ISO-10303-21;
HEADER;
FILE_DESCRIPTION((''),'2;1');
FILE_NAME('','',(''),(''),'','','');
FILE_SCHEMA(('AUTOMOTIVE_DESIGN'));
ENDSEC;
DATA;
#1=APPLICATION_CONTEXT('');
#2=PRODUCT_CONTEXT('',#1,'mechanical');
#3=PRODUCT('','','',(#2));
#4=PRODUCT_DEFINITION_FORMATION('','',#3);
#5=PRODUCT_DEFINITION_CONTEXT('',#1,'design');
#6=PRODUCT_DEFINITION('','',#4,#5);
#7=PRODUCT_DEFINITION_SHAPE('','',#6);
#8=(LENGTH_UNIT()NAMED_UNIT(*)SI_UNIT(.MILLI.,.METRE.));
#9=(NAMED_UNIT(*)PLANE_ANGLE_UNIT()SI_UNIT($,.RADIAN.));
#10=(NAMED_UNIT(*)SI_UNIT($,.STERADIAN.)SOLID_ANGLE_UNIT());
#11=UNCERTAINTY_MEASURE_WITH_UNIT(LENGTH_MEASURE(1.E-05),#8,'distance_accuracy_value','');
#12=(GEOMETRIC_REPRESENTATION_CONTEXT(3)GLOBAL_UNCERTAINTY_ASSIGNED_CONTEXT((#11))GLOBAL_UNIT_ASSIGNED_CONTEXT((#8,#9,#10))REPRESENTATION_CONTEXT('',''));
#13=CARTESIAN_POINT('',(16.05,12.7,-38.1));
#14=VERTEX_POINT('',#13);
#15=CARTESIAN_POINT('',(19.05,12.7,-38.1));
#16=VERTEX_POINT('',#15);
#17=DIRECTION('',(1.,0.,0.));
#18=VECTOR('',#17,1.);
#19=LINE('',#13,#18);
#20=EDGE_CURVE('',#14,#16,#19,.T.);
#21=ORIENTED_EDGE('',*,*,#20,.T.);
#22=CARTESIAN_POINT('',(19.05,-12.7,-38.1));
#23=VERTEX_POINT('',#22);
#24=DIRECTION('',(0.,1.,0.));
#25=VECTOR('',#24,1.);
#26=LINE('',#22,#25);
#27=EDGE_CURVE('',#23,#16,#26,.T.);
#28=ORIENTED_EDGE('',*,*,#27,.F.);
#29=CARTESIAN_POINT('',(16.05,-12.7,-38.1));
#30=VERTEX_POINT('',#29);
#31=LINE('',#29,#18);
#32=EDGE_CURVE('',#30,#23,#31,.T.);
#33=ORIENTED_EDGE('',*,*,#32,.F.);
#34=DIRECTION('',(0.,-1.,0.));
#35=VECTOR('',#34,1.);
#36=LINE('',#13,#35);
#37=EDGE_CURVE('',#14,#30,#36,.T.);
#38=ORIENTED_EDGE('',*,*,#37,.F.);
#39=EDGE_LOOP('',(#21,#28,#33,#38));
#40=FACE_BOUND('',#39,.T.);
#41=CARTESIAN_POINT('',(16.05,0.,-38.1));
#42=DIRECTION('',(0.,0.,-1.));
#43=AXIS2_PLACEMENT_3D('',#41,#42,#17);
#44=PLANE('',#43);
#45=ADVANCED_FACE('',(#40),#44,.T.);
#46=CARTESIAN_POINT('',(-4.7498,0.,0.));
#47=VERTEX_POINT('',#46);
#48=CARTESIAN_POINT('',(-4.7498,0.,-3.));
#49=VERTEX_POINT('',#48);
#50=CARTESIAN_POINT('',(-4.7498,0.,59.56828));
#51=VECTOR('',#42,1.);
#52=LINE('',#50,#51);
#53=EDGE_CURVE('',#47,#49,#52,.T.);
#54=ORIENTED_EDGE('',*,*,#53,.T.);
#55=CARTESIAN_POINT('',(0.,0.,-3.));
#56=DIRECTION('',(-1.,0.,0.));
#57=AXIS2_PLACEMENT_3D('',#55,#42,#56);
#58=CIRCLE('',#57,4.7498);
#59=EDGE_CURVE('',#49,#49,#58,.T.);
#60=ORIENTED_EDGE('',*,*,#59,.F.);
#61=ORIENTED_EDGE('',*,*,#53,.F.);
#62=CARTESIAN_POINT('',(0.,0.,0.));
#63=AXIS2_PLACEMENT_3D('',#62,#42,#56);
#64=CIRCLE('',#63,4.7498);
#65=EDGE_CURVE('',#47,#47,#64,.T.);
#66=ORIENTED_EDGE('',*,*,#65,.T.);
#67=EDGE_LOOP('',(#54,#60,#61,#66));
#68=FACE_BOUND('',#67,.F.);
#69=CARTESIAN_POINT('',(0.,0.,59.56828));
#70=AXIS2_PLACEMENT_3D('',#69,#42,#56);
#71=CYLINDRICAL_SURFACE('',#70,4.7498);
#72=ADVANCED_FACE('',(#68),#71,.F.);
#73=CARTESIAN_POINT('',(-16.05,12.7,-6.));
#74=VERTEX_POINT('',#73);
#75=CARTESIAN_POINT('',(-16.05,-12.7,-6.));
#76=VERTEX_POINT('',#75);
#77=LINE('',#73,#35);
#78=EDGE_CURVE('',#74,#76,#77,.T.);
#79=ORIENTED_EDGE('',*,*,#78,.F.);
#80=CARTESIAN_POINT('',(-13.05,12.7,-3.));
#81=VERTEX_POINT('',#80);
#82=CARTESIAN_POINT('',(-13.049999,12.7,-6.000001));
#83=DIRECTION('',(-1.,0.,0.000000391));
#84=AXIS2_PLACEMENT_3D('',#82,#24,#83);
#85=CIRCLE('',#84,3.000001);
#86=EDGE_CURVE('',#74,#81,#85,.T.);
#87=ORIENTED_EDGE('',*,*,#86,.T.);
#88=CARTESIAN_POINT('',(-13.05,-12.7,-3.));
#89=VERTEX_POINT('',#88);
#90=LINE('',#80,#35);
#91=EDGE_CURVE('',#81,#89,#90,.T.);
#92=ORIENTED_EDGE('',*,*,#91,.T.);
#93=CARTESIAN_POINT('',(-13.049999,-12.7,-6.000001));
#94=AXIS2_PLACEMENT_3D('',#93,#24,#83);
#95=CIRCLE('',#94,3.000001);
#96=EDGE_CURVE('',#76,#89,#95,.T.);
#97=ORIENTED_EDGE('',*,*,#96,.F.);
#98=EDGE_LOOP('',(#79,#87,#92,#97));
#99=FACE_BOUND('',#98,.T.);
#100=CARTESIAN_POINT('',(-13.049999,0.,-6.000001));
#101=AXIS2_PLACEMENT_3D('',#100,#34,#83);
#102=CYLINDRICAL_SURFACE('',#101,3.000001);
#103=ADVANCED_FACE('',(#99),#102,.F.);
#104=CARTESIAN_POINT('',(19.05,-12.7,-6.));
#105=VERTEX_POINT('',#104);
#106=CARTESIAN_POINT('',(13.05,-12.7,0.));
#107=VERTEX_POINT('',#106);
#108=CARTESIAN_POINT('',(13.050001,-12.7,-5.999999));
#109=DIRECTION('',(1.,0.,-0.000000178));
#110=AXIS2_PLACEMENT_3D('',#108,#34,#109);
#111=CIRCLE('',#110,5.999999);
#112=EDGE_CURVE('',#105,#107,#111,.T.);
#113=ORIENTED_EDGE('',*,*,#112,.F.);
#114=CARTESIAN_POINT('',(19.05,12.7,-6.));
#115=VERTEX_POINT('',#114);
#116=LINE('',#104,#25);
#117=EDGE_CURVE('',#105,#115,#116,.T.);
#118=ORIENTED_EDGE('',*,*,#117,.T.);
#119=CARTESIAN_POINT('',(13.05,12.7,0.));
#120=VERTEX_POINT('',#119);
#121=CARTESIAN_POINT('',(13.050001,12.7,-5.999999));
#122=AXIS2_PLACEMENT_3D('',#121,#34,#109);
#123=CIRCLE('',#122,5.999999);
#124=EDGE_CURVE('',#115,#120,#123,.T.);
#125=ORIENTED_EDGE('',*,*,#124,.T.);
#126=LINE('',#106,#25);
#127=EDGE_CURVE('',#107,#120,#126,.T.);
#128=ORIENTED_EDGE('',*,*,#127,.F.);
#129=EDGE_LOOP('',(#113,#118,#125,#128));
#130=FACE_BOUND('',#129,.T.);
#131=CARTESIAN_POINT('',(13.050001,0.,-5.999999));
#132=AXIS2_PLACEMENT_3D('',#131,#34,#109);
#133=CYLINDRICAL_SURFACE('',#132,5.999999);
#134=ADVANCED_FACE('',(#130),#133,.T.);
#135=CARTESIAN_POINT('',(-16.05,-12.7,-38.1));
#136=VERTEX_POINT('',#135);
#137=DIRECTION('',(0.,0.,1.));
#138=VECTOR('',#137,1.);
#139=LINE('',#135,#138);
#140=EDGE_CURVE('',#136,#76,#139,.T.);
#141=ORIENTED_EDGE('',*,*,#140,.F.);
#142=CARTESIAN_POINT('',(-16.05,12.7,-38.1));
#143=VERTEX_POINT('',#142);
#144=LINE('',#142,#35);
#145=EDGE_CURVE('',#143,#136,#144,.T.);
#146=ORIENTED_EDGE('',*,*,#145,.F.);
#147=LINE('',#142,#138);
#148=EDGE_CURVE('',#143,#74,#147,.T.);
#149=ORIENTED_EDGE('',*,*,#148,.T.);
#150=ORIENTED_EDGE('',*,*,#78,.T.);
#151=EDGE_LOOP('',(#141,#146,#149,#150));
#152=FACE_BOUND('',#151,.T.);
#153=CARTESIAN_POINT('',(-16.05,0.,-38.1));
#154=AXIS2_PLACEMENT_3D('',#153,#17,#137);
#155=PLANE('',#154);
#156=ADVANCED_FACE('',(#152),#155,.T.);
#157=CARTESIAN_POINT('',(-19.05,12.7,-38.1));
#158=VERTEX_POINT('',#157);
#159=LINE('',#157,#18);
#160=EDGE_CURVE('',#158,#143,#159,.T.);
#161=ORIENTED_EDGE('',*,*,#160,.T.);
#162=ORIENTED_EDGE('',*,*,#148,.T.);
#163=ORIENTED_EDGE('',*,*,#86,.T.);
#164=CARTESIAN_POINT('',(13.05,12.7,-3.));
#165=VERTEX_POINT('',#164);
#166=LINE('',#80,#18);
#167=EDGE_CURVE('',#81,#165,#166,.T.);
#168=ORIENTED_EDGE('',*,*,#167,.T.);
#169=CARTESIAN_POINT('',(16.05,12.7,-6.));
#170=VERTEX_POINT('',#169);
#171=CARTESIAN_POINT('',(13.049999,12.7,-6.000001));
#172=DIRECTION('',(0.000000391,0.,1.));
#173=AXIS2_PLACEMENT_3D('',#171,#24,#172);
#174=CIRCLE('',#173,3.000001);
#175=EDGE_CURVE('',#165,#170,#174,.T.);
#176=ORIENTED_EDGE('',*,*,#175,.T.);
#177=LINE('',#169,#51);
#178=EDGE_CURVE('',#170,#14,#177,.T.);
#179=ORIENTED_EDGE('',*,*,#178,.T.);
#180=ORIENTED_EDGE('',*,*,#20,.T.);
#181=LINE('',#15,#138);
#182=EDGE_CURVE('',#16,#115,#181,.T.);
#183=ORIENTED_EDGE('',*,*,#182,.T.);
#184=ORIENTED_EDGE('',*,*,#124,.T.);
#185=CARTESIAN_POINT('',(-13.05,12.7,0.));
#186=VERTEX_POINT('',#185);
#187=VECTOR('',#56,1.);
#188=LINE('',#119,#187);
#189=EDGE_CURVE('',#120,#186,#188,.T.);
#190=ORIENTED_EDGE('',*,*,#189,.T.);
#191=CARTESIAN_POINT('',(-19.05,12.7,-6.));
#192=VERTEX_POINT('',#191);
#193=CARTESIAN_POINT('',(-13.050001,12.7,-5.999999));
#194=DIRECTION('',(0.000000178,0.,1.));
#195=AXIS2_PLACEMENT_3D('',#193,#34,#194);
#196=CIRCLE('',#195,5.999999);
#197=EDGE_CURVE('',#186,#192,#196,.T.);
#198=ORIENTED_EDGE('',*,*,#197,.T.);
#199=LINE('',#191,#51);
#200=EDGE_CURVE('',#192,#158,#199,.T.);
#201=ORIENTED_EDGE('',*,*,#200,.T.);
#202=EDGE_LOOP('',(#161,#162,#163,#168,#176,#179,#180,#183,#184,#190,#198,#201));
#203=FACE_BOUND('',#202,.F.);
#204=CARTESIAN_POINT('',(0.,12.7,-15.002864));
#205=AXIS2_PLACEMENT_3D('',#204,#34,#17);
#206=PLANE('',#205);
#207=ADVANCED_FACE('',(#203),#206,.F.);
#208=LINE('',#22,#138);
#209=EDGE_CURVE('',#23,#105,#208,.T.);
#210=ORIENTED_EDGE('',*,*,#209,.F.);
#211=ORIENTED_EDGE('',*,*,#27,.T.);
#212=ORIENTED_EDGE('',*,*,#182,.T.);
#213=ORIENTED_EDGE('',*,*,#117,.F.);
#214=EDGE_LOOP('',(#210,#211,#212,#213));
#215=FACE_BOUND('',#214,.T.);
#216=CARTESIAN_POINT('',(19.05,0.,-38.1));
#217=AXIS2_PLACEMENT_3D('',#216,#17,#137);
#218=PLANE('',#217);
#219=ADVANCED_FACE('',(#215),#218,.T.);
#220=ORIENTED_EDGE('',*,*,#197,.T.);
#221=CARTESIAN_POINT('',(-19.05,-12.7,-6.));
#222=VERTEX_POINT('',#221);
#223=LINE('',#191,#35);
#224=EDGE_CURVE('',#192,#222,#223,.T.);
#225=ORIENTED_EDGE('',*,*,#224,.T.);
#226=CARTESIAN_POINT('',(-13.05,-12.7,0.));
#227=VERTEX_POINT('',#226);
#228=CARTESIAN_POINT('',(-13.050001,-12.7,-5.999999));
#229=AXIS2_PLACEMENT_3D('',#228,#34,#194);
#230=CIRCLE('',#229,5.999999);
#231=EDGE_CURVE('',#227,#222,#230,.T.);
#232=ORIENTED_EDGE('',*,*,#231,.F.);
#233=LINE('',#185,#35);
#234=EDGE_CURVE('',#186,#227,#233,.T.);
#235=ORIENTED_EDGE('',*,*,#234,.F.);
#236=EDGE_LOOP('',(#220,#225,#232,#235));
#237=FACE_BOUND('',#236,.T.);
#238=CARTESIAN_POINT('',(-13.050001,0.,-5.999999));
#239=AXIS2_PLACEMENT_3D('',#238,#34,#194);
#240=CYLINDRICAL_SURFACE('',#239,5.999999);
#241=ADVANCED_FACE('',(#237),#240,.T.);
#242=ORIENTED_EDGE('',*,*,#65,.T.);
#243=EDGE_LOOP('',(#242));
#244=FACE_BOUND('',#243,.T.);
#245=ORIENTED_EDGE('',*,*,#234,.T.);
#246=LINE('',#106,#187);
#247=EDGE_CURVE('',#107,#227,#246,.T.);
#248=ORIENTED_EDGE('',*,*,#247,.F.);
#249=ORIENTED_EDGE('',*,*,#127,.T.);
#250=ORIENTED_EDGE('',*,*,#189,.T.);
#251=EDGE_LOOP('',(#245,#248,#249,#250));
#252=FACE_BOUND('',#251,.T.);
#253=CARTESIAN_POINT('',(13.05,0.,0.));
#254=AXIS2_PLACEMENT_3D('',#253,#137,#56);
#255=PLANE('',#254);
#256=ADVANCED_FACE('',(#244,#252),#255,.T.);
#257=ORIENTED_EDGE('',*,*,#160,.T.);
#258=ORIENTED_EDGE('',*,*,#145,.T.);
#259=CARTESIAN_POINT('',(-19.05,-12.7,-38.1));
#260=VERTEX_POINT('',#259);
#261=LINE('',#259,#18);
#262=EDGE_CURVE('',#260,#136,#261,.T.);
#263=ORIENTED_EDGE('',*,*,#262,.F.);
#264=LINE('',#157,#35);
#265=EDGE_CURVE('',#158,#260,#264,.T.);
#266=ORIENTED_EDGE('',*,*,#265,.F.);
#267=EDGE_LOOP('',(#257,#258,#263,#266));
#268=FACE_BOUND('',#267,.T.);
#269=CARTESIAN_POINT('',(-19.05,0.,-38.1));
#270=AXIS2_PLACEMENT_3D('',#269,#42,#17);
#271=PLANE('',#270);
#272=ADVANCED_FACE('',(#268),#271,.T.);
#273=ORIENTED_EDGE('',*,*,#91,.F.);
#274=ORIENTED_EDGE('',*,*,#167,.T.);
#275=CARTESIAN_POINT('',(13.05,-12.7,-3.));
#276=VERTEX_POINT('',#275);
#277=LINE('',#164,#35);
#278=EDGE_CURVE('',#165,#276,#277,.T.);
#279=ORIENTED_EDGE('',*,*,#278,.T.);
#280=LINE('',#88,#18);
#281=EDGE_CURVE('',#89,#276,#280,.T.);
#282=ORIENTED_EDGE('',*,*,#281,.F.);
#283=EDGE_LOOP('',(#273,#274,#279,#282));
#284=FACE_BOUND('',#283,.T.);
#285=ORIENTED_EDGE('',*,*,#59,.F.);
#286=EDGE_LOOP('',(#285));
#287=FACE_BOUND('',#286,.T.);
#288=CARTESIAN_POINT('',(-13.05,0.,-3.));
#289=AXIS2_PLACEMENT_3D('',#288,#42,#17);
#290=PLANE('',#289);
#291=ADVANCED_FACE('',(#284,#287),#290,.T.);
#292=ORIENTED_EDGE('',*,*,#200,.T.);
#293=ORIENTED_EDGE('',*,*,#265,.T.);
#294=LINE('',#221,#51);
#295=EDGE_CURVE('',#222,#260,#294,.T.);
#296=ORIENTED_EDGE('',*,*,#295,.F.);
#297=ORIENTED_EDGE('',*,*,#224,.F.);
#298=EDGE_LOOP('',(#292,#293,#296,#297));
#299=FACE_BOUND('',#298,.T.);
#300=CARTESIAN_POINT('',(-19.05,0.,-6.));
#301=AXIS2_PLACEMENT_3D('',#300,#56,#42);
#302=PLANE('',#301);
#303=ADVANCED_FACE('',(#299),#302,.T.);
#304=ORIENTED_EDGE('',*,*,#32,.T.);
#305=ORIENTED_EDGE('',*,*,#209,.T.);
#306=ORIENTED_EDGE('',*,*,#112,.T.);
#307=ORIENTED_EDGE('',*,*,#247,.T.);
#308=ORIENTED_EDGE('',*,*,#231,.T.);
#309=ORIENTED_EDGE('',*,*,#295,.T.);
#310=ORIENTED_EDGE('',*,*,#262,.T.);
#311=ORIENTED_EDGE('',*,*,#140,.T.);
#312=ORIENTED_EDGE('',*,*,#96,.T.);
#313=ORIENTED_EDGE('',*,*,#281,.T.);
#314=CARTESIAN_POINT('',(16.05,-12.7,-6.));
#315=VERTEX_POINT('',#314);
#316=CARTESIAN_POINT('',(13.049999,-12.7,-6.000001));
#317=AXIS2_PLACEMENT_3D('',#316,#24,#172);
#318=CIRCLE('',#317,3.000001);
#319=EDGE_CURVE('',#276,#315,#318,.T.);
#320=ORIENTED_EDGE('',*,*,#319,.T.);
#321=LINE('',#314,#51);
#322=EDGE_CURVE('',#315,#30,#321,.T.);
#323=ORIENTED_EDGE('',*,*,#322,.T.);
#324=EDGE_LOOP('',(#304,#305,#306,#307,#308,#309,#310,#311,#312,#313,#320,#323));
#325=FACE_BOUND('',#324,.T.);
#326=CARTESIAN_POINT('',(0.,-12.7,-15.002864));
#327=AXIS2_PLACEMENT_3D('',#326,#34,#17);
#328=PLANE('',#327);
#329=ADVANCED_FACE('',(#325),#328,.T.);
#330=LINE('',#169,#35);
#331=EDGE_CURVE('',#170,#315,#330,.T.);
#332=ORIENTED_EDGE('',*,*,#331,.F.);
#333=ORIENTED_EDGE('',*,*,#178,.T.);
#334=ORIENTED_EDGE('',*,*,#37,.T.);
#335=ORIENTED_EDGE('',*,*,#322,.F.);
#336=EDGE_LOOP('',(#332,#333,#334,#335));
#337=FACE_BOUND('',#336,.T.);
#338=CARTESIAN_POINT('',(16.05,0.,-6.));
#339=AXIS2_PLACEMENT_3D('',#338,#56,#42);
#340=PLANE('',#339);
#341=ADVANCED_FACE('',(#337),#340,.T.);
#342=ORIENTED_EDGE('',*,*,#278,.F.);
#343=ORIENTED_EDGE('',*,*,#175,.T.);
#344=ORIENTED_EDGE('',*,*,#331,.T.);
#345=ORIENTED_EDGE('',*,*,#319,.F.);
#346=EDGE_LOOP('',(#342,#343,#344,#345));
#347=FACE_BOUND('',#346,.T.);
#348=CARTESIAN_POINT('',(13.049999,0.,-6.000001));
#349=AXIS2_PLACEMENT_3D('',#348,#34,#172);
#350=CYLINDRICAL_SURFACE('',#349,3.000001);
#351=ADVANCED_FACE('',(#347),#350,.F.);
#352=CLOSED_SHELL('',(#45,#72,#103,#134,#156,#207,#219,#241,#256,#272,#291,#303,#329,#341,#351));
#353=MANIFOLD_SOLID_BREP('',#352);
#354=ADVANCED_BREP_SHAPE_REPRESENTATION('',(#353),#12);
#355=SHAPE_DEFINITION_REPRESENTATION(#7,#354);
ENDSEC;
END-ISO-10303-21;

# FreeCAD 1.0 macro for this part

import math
import FreeCAD as App
import Part
import Sketcher

V = App.Vector

doc = App.newDocument("Part")
body = doc.addObject("PartDesign::Body", "Body")

# Sketch on XZ plane
sketch1 = body.newObject("Sketcher::SketchObject", "Sketch")
sketch1.AttachmentSupport = (doc.getObject("XZ_Plane"), [""])
sketch1.MapMode = "FlatFace"
sketch1.addGeometry([
    Part.LineSegment(V(13.1, 0, 0), V(-13.1, 0, 0)),  # 0
    Part.ArcOfCircle(Part.Circle(V(-13.1, -6, 0), V(0, 0, 1), 6), math.radians(90), math.radians(180)),  # 1
    Part.LineSegment(V(-19.1, -6, 0), V(-19.1, -38.1, 0)),  # 2
    Part.LineSegment(V(-19.1, -38.1, 0), V(-16.1, -38.1, 0)),  # 3
    Part.LineSegment(V(-16.1, -38.1, 0), V(-16.1, -6, 0)),  # 4
    Part.ArcOfCircle(Part.Circle(V(-13, -6, 0), V(0, 0, 1), 3), math.radians(90), math.radians(180)),  # 5
    Part.LineSegment(V(-13.1, -3, 0), V(13.1, -3, 0)),  # 6
    Part.ArcOfCircle(Part.Circle(V(13, -6, 0), V(0, 0, 1), 3), math.radians(0), math.radians(90)),  # 7
    Part.LineSegment(V(16.1, -6, 0), V(16.1, -38.1, 0)),  # 8
    Part.LineSegment(V(16.1, -38.1, 0), V(19.1, -38.1, 0)),  # 9
    Part.LineSegment(V(19.1, -38.1, 0), V(19.1, -6, 0)),  # 10
    Part.ArcOfCircle(Part.Circle(V(13.1, -6, 0), V(0, 0, 1), 6), math.radians(0), math.radians(90)),  # 11
], False)
sketch1.addConstraint([
    Sketcher.Constraint("Tangent", 0, 2, 1, 1),
    Sketcher.Constraint("Tangent", 1, 2, 2, 1),
    Sketcher.Constraint("Coincident", 2, 2, 3, 1),
    Sketcher.Constraint("Coincident", 3, 2, 4, 1),
    Sketcher.Constraint("Tangent", 4, 2, 5, 2),
    Sketcher.Constraint("Tangent", 5, 1, 6, 1),
    Sketcher.Constraint("Tangent", 6, 2, 7, 2),
    Sketcher.Constraint("Tangent", 7, 1, 8, 1),
    Sketcher.Constraint("Coincident", 8, 2, 9, 1),
    Sketcher.Constraint("Coincident", 9, 2, 10, 1),
    Sketcher.Constraint("Tangent", 10, 2, 11, 1),
    Sketcher.Constraint("Tangent", 11, 2, 0, 1),
    Sketcher.Constraint("Horizontal", 0),
    Sketcher.Constraint("Vertical", 2),
    Sketcher.Constraint("Horizontal", 3),
    Sketcher.Constraint("Vertical", 4),
    Sketcher.Constraint("Horizontal", 6),
    Sketcher.Constraint("Vertical", 8),
    Sketcher.Constraint("Horizontal", 9),
    Sketcher.Constraint("Vertical", 10),
    Sketcher.Constraint("Coincident", 5, 3, 1, 3),
    Sketcher.Constraint("Coincident", 11, 3, 7, 3),
    Sketcher.Constraint("Equal", 5, 7),
    Sketcher.Constraint("Symmetric", 0, 2, 11, 2, -1, 1),
    Sketcher.Constraint("Horizontal", 3, 2, 8, 2),
    Sketcher.Constraint("Radius", 1, 5.999999),
    Sketcher.Constraint("Radius", 5, 3.000001),
    Sketcher.Constraint("DistanceX", 0, 2, 0, 1, 26.1),
    Sketcher.Constraint("DistanceY", 2, 2, 2, 1, 32.1),
])
pad1 = body.newObject("PartDesign::Pad", "Pad")
pad1.Profile = sketch1
pad1.Length = 25.4
pad1.Midplane = True

# Sketch on XY plane
sketch2 = body.newObject("Sketcher::SketchObject", "Sketch001")
sketch2.AttachmentSupport = (doc.getObject("XY_Plane"), [""])
sketch2.MapMode = "FlatFace"
sketch2.addGeometry(Part.Circle(V(0, 0, 0), V(0, 0, 1), 4.7), False)
sketch2.addConstraint([
    Sketcher.Constraint("Coincident", 0, 3, -1, 1),
    Sketcher.Constraint("Diameter", 0, 9.4996),
])
doc.recompute()
hole = body.newObject("PartDesign::Hole", "Hole")
hole.Profile = sketch2
hole.ThreadType = "None"
hole.Diameter = 9.4996
hole.DepthType = "ThroughAll"

doc.recompute()
